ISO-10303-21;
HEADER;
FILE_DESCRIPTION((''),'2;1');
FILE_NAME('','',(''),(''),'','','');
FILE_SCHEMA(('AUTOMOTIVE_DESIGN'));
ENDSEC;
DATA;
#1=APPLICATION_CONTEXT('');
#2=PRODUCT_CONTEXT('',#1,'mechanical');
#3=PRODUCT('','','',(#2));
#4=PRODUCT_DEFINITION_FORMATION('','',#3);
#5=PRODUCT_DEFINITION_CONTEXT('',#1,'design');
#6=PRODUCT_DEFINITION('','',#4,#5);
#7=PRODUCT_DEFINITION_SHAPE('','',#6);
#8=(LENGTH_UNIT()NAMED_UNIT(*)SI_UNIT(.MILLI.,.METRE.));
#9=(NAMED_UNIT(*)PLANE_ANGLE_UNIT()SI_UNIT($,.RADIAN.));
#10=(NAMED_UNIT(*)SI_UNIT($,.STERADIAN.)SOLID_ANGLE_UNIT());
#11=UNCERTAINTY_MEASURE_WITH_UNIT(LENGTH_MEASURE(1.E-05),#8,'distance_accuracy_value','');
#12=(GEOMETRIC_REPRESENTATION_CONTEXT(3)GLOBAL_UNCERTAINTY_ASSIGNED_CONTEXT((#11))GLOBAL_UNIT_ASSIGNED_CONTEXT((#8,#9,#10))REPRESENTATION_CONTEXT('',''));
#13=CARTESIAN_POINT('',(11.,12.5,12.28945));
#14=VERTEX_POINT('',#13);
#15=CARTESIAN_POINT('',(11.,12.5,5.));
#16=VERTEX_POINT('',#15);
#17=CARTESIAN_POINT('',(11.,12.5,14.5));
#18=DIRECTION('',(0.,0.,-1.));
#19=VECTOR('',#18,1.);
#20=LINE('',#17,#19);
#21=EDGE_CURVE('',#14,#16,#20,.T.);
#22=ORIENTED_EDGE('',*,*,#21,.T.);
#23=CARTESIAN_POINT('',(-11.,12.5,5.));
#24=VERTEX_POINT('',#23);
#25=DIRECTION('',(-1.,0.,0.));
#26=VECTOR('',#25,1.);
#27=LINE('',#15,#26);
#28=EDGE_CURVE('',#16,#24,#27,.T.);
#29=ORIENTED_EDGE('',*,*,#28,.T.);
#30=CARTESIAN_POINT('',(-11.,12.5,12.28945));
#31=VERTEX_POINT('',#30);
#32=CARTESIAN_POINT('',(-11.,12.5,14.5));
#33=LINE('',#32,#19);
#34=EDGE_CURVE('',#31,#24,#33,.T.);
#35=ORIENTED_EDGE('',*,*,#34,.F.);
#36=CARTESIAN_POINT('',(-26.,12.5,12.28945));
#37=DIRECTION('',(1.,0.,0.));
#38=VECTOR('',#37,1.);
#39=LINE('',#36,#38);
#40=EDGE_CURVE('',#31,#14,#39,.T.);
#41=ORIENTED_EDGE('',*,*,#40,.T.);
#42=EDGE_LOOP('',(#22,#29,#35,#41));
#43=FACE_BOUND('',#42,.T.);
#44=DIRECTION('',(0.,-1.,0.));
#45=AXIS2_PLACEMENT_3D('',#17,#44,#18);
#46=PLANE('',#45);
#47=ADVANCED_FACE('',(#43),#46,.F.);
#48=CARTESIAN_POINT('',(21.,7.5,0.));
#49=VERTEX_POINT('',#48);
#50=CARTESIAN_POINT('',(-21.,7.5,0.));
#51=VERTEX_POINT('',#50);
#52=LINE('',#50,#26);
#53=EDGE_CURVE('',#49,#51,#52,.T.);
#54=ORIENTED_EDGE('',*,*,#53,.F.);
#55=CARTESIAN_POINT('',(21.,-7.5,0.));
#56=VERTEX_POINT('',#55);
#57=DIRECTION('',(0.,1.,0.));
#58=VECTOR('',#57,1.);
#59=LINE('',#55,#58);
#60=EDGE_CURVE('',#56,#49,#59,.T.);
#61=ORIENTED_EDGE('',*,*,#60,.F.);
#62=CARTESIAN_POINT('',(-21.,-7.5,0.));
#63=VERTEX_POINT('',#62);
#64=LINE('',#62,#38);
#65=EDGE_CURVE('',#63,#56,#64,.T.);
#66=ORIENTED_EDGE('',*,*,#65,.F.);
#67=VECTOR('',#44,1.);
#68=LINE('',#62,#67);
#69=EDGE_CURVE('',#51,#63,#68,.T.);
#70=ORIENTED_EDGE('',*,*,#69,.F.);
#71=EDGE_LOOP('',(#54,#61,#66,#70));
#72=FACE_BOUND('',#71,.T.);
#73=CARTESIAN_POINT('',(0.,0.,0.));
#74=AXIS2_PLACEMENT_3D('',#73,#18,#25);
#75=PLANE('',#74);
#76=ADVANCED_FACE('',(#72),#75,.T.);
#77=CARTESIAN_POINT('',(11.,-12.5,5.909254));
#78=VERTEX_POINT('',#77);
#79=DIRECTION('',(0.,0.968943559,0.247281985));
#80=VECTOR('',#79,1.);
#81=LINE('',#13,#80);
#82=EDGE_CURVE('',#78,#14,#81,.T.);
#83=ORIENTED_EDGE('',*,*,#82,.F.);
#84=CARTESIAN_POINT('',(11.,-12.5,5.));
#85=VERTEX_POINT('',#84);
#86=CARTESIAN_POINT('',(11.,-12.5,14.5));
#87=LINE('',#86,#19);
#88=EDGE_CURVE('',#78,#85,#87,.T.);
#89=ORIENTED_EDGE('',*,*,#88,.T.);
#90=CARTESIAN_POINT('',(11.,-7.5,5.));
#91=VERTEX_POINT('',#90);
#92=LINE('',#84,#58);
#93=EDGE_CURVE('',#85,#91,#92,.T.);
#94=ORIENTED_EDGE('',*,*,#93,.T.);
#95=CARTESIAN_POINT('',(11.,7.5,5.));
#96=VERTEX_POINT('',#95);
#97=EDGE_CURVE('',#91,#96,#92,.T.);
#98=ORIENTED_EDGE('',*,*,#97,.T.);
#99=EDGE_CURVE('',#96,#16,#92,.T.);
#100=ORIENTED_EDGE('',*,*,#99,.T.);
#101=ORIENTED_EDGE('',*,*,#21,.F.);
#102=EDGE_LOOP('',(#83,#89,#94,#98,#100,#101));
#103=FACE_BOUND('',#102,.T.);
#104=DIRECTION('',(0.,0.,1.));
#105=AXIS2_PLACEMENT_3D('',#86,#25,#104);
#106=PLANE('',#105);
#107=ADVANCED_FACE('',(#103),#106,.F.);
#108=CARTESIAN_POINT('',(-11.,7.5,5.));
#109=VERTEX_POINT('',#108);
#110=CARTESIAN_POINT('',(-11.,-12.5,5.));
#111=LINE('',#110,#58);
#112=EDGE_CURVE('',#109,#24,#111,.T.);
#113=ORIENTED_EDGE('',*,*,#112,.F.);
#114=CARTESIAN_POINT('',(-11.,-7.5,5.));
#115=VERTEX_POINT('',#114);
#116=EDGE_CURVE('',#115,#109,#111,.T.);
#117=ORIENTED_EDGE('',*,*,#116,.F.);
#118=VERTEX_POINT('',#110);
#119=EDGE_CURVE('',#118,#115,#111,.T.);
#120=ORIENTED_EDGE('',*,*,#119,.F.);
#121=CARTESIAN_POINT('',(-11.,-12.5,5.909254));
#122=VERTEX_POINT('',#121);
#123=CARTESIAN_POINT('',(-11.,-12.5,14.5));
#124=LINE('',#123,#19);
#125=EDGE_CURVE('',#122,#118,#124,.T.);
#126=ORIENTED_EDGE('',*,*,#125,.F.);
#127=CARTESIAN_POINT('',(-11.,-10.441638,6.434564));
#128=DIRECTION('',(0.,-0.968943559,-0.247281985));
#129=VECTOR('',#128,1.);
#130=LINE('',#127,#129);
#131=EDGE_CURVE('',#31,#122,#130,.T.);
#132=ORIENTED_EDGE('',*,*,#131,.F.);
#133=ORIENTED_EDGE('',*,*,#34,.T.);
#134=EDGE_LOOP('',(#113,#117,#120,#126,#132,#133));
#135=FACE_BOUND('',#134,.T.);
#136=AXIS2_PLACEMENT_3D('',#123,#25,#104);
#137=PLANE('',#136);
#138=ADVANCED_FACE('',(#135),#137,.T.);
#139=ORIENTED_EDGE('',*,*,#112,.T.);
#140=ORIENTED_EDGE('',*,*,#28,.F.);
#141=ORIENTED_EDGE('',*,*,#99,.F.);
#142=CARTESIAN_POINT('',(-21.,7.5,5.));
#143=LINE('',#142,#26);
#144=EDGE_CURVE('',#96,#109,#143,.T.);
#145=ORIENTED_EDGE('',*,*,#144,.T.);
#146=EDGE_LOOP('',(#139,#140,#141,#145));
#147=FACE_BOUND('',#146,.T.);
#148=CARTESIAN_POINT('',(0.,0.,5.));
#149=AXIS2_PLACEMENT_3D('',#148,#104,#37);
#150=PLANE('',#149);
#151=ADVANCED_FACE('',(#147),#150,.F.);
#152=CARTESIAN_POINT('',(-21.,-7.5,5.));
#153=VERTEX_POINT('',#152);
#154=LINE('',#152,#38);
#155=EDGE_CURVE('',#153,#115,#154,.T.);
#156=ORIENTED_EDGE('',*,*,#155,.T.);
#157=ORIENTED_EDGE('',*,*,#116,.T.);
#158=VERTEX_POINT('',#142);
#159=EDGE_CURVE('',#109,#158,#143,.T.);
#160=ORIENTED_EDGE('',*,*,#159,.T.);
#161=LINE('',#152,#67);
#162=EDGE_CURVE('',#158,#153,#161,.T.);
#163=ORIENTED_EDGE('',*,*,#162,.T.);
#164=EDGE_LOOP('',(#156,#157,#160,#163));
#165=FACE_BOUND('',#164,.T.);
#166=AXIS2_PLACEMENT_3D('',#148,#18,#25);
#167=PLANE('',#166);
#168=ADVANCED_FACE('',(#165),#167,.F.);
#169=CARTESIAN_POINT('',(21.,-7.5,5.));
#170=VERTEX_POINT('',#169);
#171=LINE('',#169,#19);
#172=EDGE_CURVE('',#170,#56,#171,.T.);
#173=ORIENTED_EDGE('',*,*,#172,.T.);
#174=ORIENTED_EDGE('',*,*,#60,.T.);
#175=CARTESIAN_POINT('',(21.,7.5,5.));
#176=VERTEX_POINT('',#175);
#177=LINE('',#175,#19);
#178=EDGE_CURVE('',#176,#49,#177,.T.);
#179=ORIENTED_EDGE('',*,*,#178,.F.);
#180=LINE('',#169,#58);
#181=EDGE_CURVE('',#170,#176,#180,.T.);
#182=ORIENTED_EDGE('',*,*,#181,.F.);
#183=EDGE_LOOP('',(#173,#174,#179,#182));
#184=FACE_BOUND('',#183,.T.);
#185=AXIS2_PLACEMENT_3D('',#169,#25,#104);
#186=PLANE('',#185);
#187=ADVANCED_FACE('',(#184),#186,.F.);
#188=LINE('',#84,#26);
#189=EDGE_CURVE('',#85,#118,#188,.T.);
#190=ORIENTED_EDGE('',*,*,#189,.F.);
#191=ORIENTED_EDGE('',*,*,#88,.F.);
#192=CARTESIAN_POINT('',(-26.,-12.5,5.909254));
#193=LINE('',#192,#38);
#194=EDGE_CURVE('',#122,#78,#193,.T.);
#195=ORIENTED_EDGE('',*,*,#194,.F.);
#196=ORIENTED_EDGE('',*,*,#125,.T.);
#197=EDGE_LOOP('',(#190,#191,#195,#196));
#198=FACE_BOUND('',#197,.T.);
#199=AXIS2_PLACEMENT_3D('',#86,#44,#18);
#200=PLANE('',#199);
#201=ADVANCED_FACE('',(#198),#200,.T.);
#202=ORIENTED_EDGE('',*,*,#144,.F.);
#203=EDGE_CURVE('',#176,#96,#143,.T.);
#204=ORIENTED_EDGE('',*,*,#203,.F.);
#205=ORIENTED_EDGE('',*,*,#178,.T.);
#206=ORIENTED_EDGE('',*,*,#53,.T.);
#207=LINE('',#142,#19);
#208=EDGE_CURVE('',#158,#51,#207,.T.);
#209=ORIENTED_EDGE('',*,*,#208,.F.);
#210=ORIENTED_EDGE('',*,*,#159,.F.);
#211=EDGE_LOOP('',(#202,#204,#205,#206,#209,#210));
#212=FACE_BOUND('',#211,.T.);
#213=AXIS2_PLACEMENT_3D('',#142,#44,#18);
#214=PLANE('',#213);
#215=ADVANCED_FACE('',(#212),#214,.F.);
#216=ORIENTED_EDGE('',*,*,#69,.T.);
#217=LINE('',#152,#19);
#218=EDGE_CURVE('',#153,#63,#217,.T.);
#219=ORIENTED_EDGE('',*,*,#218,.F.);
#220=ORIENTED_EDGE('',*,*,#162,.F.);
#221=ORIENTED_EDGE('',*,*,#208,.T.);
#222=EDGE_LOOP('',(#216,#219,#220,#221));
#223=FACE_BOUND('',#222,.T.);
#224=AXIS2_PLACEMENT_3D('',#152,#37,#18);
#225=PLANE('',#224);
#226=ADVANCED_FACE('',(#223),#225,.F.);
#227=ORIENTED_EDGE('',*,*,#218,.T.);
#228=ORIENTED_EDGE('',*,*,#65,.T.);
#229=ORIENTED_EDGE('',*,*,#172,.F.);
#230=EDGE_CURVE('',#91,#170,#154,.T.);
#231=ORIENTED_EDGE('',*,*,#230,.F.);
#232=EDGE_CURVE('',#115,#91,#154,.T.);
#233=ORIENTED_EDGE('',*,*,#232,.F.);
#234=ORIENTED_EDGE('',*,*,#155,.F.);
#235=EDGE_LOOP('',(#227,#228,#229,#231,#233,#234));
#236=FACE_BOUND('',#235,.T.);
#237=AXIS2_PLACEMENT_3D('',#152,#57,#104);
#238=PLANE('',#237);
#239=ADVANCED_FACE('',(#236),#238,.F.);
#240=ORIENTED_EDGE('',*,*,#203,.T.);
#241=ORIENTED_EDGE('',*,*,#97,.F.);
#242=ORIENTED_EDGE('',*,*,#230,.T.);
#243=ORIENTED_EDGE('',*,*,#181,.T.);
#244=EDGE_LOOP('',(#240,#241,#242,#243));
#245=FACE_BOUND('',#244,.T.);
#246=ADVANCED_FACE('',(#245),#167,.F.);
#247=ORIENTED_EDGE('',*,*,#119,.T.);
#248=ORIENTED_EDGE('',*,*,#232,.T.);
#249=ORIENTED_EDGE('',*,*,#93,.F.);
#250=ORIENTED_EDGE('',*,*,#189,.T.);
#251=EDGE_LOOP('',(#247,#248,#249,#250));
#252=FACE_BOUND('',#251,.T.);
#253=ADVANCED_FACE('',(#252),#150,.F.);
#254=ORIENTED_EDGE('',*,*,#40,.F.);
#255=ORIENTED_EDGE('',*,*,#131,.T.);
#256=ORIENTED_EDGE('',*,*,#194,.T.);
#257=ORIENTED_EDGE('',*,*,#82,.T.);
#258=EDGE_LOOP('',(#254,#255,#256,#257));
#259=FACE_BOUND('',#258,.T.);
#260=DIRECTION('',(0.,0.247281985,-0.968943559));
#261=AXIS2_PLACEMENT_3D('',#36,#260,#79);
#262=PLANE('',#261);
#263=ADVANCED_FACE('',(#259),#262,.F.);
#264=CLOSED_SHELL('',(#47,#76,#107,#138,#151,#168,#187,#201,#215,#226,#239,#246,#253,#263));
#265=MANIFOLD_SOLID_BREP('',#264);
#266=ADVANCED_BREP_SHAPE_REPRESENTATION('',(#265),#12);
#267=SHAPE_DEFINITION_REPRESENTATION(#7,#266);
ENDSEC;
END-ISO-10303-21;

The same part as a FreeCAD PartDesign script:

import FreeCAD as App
import Part
import Sketcher
from FreeCAD import Vector


def add_polygon(sketch, points):
    """Adds a closed chain of lines whose ends are joined by coincident constraints."""
    first, n = sketch.GeometryCount, len(points)
    for a, b in zip(points, points[1:] + points[:1]):
        sketch.addGeometry(Part.LineSegment(App.Vector(*a, 0), App.Vector(*b, 0)), False)
    for i in range(n):
        sketch.addConstraint(Sketcher.Constraint("Coincident", first + i, 2, first + (i + 1) % n, 1))

doc = App.newDocument("Part")
body = doc.addObject("PartDesign::Body", "Body")

# Sketch on XY plane
sketch1 = doc.addObject("Sketcher::SketchObject", "Sketch")
body.addObject(sketch1)
sketch1.AttachmentSupport = (doc.XY_Plane, [""])
sketch1.MapMode = "FlatFace"
add_polygon(sketch1, [(-21, 8), (-21, -8), (21, -8), (21, 8)])  # lines 0-3
sketch1.addConstraint([
    Sketcher.Constraint("Vertical", 0),
    Sketcher.Constraint("Horizontal", 1),
    Sketcher.Constraint("Vertical", 2),
    Sketcher.Constraint("Horizontal", 3),
    Sketcher.Constraint("Symmetric", 0, 2, 2, 2, -1, 1),
    Sketcher.Constraint("DistanceX", 1, 1, 1, 2, 42.0),
    Sketcher.Constraint("DistanceY", 0, 2, 0, 1, 15.0),
])
pad1 = doc.addObject("PartDesign::Pad", "Pad")
body.addObject(pad1)
pad1.Profile = sketch1
pad1.Length = 5

# Sketch on XY plane
sketch2 = doc.addObject("Sketcher::SketchObject", "Sketch001")
body.addObject(sketch2)
sketch2.AttachmentSupport = (doc.XY_Plane, [""])
sketch2.MapMode = "FlatFace"
sketch2.AttachmentOffset = App.Placement(Vector(0, 0, 5), App.Rotation())
add_polygon(sketch2, [(-11, 12), (-11, -12), (11, -12), (11, 12)])  # lines 0-3
sketch2.addConstraint([
    Sketcher.Constraint("Vertical", 0),
    Sketcher.Constraint("Horizontal", 1),
    Sketcher.Constraint("Vertical", 2),
    Sketcher.Constraint("Horizontal", 3),
    Sketcher.Constraint("Symmetric", 0, 2, 2, 2, -1, 1),
    Sketcher.Constraint("DistanceX", 1, 1, 1, 2, 22.0),
    Sketcher.Constraint("DistanceY", 0, 2, 0, 1, 25.0),
])
pad2 = doc.addObject("PartDesign::Pad", "Pad001")
body.addObject(pad2)
pad2.Profile = sketch2
pad2.Length = 9.5

# Sketch on YZ plane
sketch3 = doc.addObject("Sketcher::SketchObject", "Sketch002")
body.addObject(sketch3)
sketch3.AttachmentSupport = (doc.YZ_Plane, [""])
sketch3.MapMode = "FlatFace"
sketch3.AttachmentOffset = App.Placement(Vector(0, 0, 11), App.Rotation())
add_polygon(sketch3, [(-12.5, 5.9), (12.5, 12.3), (12.5, 14.5), (-12.5, 14.5)])  # lines 0-3
sketch3.addConstraint([
    Sketcher.Constraint("Vertical", 1),
    Sketcher.Constraint("Horizontal", 2),
    Sketcher.Constraint("Vertical", 3),
    Sketcher.Constraint("DistanceX", 2, 2, 2, 1, 25.0),
    Sketcher.Constraint("DistanceX", -1, 1, 0, 2, 12.5),
    Sketcher.Constraint("DistanceY", -1, 1, 1, 2, 14.5),
    Sketcher.Constraint("DistanceY", 1, 1, 1, 2, 2.21055),
    Sketcher.Constraint("DistanceY", 3, 2, 3, 1, 8.590746),
])
pocket1 = doc.addObject("PartDesign::Pocket", "Pocket")
body.addObject(pocket1)
pocket1.Profile = sketch3
pocket1.Length = 37

doc.recompute()
